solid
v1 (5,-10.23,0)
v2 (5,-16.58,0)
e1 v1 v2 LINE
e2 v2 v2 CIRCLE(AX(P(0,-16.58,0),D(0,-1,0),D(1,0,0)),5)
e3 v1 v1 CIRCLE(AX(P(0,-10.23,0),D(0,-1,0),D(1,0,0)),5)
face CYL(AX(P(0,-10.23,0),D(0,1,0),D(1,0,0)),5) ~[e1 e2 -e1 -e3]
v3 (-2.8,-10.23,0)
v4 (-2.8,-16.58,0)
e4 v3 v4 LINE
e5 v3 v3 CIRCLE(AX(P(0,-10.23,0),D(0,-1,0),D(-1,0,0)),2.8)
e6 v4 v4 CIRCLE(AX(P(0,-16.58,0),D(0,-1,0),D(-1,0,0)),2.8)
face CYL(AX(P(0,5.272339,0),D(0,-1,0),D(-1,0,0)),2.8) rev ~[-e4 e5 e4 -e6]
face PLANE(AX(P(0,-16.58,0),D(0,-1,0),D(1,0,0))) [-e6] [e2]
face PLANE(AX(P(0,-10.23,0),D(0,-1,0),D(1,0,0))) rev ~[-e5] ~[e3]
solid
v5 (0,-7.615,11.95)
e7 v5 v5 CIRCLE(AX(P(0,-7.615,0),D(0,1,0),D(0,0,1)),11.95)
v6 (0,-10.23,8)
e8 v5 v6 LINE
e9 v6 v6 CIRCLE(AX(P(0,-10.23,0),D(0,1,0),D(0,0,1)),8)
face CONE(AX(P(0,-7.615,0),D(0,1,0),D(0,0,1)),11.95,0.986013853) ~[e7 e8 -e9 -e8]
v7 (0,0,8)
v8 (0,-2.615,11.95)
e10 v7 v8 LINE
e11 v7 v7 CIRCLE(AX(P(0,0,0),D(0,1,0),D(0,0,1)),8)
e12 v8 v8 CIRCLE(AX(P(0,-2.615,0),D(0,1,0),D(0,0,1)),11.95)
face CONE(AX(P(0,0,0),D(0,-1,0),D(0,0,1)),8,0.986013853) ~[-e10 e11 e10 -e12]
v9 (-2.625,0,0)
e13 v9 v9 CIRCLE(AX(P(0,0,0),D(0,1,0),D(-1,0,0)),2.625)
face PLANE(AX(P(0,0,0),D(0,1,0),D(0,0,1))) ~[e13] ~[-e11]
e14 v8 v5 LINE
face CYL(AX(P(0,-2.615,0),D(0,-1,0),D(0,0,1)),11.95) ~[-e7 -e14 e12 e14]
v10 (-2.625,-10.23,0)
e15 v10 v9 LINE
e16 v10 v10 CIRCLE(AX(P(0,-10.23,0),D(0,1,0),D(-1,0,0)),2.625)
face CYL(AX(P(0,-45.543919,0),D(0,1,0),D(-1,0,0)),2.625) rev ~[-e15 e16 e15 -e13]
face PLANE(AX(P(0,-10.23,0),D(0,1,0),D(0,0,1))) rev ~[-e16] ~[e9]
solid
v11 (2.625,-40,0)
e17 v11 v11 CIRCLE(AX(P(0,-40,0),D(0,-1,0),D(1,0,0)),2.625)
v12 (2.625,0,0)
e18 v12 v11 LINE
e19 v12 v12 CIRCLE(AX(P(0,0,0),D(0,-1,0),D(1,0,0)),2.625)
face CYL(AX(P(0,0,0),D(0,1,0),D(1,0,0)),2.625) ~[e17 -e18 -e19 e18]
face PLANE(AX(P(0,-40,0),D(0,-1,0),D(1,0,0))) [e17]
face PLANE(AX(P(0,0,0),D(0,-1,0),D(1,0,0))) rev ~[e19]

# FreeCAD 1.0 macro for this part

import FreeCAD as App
import Part
import Sketcher

V = App.Vector
Q = App.Units.Quantity

doc = App.newDocument("Part")
body = doc.addObject("PartDesign::Body", "Body")

# Sketch on YZ plane
sketch1 = body.newObject("Sketcher::SketchObject", "Sketch")
sketch1.AttachmentSupport = (doc.getObject("YZ_Plane"), [""])
sketch1.MapMode = "FlatFace"
sketch1.addGeometry([
    Part.LineSegment(V(0, 8, 0), V(-2.6, 11.9, 0)),  # 0
    Part.LineSegment(V(-2.6, 11.9, 0), V(-7.6, 11.9, 0)),  # 1
    Part.LineSegment(V(-7.6, 11.9, 0), V(-10.2, 8, 0)),  # 2
    Part.LineSegment(V(-10.2, 8, 0), V(-10.2, 0, 0)),  # 3
    Part.LineSegment(V(-10.2, 0, 0), V(0, 0, 0)),  # 4
    Part.LineSegment(V(0, 0, 0), V(0, 8, 0)),  # 5
], False)
sketch1.addConstraint([
    Sketcher.Constraint("Coincident", 0, 2, 1, 1),
    Sketcher.Constraint("Coincident", 1, 2, 2, 1),
    Sketcher.Constraint("Coincident", 2, 2, 3, 1),
    Sketcher.Constraint("Coincident", 3, 2, 4, 1),
    Sketcher.Constraint("Coincident", 4, 2, 5, 1),
    Sketcher.Constraint("Coincident", 5, 2, 0, 1),
    Sketcher.Constraint("Horizontal", 1),
    Sketcher.Constraint("Vertical", 3),
    Sketcher.Constraint("Horizontal", 4),
    Sketcher.Constraint("Vertical", 5),
    Sketcher.Constraint("Coincident", 4, 2, -1, 1),
    Sketcher.Constraint("Horizontal", 2, 2, 5, 2),
    Sketcher.Constraint("Equal", 0, 2),
    Sketcher.Constraint("DistanceX", 1, 2, 1, 1, Q("5 mm")),
    Sketcher.Constraint("DistanceY", 3, 2, 3, 1, Q("8 mm")),
    Sketcher.Constraint("DistanceX", 4, 1, 4, 2, Q("10.23 mm")),
    Sketcher.Constraint("DistanceY", -1, 1, 0, 2, Q("11.95 mm")),
])
revolution = body.newObject("PartDesign::Revolution", "Revolution")
revolution.Profile = sketch1
revolution.ReferenceAxis = (sketch1, ["H_Axis"])
revolution.Angle = 360

# Sketch on XZ plane
sketch2 = body.newObject("Sketcher::SketchObject", "Sketch001")
sketch2.AttachmentSupport = (doc.getObject("XZ_Plane"), [""])
sketch2.MapMode = "FlatFace"
sketch2.AttachmentOffset = App.Placement(V(0, 0, 10.23), App.Rotation())
sketch2.addGeometry(Part.Circle(V(0, 0, 0), V(0, 0, 1), 2.6), False)
sketch2.addConstraint([
    Sketcher.Constraint("Coincident", 0, 3, -1, 1),
    Sketcher.Constraint("Diameter", 0, Q("5.25 mm")),
])
doc.recompute()
hole = body.newObject("PartDesign::Hole", "Hole")
hole.Profile = sketch2
hole.ThreadType = "None"
hole.Diameter = 5.25
hole.DepthType = "ThroughAll"
body2 = doc.addObject("PartDesign::Body", "Body001")

# Sketch on XZ plane
sketch3 = body2.newObject("Sketcher::SketchObject", "Sketch002")
sketch3.AttachmentSupport = (doc.getObject("XZ_Plane001"), [""])
sketch3.MapMode = "FlatFace"
sketch3.addGeometry(Part.Circle(V(0, 0, 0), V(0, 0, 1), 2.6), False)
sketch3.addConstraint([
    Sketcher.Constraint("Coincident", 0, 3, -1, 1),
    Sketcher.Constraint("Diameter", 0, Q("5.25 mm")),
])
pad1 = body2.newObject("PartDesign::Pad", "Pad")
pad1.Profile = sketch3
pad1.Length = 40
body3 = doc.addObject("PartDesign::Body", "Body002")

# Sketch on XZ plane
sketch4 = body3.newObject("Sketcher::SketchObject", "Sketch003")
sketch4.AttachmentSupport = (doc.getObject("XZ_Plane002"), [""])
sketch4.MapMode = "FlatFace"
sketch4.AttachmentOffset = App.Placement(V(0, 0, 10.23), App.Rotation())
sketch4.addGeometry([
    Part.Circle(V(0, 0, 0), V(0, 0, 1), 5),
    Part.Circle(V(0, 0, 0), V(0, 0, 1), 2.6),
], False)
sketch4.addConstraint([
    Sketcher.Constraint("Coincident", 0, 3, -1, 1),
    Sketcher.Constraint("Coincident", 1, 3, -1, 1),
    Sketcher.Constraint("Diameter", 0, Q("10 mm")),
    Sketcher.Constraint("Diameter", 1, Q("5.25 mm")),
])
pad2 = body3.newObject("PartDesign::Pad", "Pad001")
pad2.Profile = sketch4
pad2.Length = 6.35

# Sketch on XZ plane
sketch5 = body3.newObject("Sketcher::SketchObject", "Sketch004")
sketch5.AttachmentSupport = (doc.getObject("XZ_Plane002"), [""])
sketch5.MapMode = "FlatFace"
sketch5.AttachmentOffset = App.Placement(V(0, 0, 10.23), App.Rotation())
sketch5.addGeometry(Part.Circle(V(0, 0, 0), V(0, 0, 1), 2.8), False)
sketch5.addConstraint([
    Sketcher.Constraint("Coincident", 0, 3, -1, 1),
    Sketcher.Constraint("Diameter", 0, Q("5.6 mm")),
])
doc.recompute()
hole2 = body3.newObject("PartDesign::Hole", "Hole001")
hole2.Profile = sketch5
hole2.ThreadType = "None"
hole2.Diameter = 5.6
hole2.DepthType = "ThroughAll"
hole2.Reversed = True

doc.recompute()
